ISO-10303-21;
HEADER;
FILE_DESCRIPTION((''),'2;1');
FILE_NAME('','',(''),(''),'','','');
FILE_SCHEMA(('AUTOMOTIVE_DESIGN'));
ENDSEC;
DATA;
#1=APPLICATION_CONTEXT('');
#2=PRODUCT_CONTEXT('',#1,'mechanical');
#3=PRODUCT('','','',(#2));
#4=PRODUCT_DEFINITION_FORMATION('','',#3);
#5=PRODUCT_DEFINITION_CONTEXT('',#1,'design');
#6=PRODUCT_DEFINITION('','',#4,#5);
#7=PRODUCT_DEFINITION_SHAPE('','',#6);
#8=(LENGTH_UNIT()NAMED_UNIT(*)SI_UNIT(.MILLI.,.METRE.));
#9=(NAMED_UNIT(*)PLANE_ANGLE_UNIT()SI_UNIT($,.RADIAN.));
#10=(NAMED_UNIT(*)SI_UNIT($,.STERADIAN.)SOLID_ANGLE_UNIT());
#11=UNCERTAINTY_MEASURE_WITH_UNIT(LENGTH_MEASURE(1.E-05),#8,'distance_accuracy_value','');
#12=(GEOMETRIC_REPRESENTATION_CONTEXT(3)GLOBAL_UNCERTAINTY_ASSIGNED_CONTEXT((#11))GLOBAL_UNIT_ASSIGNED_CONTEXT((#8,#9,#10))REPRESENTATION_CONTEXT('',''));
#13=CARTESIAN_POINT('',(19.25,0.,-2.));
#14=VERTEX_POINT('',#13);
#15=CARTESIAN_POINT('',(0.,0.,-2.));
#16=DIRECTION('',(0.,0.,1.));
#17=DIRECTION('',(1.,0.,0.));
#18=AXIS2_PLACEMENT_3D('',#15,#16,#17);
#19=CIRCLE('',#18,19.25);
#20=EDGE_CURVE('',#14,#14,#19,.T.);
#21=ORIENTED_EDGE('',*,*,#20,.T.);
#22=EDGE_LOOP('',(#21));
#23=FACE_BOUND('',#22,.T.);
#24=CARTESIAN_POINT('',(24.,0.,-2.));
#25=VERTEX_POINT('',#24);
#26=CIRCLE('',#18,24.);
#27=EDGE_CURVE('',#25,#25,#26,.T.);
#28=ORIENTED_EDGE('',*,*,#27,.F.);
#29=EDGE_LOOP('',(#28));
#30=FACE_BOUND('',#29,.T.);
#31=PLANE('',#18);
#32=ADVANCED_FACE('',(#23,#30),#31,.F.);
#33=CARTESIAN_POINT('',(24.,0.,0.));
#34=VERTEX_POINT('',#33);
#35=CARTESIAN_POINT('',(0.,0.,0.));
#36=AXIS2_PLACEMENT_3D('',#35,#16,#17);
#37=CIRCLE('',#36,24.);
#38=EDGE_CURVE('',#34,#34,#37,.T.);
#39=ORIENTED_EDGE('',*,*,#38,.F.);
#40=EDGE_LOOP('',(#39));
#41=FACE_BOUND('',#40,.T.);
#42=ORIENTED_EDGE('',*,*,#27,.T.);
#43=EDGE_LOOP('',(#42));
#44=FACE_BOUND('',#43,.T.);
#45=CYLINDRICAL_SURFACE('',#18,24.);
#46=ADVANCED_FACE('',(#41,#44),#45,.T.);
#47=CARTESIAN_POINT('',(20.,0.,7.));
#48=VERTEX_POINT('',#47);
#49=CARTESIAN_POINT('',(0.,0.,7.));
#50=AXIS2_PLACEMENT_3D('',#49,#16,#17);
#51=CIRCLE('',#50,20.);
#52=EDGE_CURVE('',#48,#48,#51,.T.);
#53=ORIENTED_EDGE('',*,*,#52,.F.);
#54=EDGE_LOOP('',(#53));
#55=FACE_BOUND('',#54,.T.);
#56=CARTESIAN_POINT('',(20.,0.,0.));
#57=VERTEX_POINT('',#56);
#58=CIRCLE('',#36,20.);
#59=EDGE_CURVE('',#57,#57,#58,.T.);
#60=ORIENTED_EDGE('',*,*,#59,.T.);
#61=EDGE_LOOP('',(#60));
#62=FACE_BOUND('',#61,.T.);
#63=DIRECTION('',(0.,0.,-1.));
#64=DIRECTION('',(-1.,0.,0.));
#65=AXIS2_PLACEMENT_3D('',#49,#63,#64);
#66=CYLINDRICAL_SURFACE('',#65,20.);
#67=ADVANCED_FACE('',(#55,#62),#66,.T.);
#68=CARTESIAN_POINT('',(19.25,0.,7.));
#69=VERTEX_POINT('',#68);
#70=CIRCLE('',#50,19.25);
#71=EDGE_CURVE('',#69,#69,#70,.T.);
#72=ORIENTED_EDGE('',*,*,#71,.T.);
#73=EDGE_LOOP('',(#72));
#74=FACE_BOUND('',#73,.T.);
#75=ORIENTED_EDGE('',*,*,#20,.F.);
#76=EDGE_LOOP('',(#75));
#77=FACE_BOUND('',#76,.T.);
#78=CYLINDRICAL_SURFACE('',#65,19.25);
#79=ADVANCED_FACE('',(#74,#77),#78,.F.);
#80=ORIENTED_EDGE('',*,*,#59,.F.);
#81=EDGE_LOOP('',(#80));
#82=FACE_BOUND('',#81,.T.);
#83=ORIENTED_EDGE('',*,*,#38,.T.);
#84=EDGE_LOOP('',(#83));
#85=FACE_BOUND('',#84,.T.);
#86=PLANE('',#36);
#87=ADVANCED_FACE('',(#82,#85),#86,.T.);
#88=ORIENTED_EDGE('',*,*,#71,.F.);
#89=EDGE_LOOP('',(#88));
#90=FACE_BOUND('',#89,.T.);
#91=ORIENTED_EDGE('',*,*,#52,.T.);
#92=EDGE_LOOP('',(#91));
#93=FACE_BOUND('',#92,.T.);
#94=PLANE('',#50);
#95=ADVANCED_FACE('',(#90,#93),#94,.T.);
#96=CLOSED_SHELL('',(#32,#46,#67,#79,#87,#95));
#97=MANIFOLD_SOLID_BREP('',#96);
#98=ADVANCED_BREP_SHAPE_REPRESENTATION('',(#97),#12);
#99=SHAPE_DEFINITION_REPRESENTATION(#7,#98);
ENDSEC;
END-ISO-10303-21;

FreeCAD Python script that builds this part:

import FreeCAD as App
import Part
import Sketcher

V = App.Vector
Q = App.Units.Quantity

doc = App.newDocument("Part")
body = doc.addObject("PartDesign::Body", "Body")

# Sketch on XY plane
sketch1 = body.newObject("Sketcher::SketchObject", "Sketch")
sketch1.AttachmentSupport = (doc.getObject("XY_Plane"), [""])
sketch1.MapMode = "FlatFace"
sketch1.addGeometry(Part.Circle(V(0, 0, 0), V(0, 0, 1), 20), False)
sketch1.addGeometry(Part.Circle(V(0, 0, 0), V(0, 0, 1), 19), False)
sketch1.addConstraint(Sketcher.Constraint("Coincident", 0, 3, -1, 1))
sketch1.addConstraint(Sketcher.Constraint("Coincident", 1, 3, -1, 1))
sketch1.addConstraint(Sketcher.Constraint("Diameter", 0, Q("40 mm")))
sketch1.addConstraint(Sketcher.Constraint("Diameter", 1, Q("38.5 mm")))
pad1 = body.newObject("PartDesign::Pad", "Pad")
pad1.Profile = sketch1
pad1.Length = 7

# Sketch on XY plane
sketch2 = body.newObject("Sketcher::SketchObject", "Sketch001")
sketch2.AttachmentSupport = (doc.getObject("XY_Plane"), [""])
sketch2.MapMode = "FlatFace"
sketch2.addGeometry(Part.Circle(V(0, 0, 0), V(0, 0, 1), 24), False)
sketch2.addGeometry(Part.Circle(V(0, 0, 0), V(0, 0, 1), 19), False)
sketch2.addConstraint(Sketcher.Constraint("Coincident", 0, 3, -1, 1))
sketch2.addConstraint(Sketcher.Constraint("Coincident", 1, 3, -1, 1))
sketch2.addConstraint(Sketcher.Constraint("Diameter", 0, Q("48 mm")))
sketch2.addConstraint(Sketcher.Constraint("Diameter", 1, Q("38.5 mm")))
pad2 = body.newObject("PartDesign::Pad", "Pad001")
pad2.Profile = sketch2
pad2.Length = 2
pad2.Reversed = True

doc.recompute()
